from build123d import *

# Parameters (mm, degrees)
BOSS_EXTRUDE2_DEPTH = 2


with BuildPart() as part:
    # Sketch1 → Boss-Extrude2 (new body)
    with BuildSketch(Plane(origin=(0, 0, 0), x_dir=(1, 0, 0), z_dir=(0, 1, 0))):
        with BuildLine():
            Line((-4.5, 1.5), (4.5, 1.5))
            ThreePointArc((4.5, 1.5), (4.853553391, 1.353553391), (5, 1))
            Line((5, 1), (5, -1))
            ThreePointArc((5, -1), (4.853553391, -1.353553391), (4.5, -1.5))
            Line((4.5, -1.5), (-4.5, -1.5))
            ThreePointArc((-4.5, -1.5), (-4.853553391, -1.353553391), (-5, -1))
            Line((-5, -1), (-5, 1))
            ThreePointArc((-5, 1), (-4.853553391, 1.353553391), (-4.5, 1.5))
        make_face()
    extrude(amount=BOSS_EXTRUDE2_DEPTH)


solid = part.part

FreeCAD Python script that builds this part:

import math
import FreeCAD as App
import Part
import Sketcher

doc = App.newDocument("Part")
body = doc.addObject("PartDesign::Body", "Body")

sketch1 = doc.addObject("Sketcher::SketchObject", "Sketch")
body.addObject(sketch1)
sketch1.AttachmentSupport = (doc.XZ_Plane, [""])
sketch1.MapMode = "FlatFace"
sketch1.addGeometry(Part.LineSegment(App.Vector(4.5, -1.5, 0), App.Vector(-4.5, -1.5, 0)), False)
sketch1.addGeometry(Part.ArcOfCircle(Part.Circle(App.Vector(-4.5, -1, 0), App.Vector(0, 0, 1), 0.5), math.radians(180), math.radians(270)), False)
sketch1.addGeometry(Part.LineSegment(App.Vector(-5, -1, 0), App.Vector(-5, 1, 0)), False)
sketch1.addGeometry(Part.ArcOfCircle(Part.Circle(App.Vector(-4.5, 1, 0), App.Vector(0, 0, 1), 0.5), math.radians(90), math.radians(180)), False)
sketch1.addGeometry(Part.LineSegment(App.Vector(-4.5, 1.5, 0), App.Vector(4.5, 1.5, 0)), False)
sketch1.addGeometry(Part.ArcOfCircle(Part.Circle(App.Vector(4.5, 1, 0), App.Vector(0, 0, 1), 0.5), math.radians(0), math.radians(90)), False)
sketch1.addGeometry(Part.LineSegment(App.Vector(5, 1, 0), App.Vector(5, -1, 0)), False)
sketch1.addGeometry(Part.ArcOfCircle(Part.Circle(App.Vector(4.5, -1, 0), App.Vector(0, 0, 1), 0.5), math.radians(-90), math.radians(0)), False)
sketch1.addConstraint(Sketcher.Constraint("Tangent", 0, 2, 1, 2))
sketch1.addConstraint(Sketcher.Constraint("Tangent", 1, 1, 2, 1))
sketch1.addConstraint(Sketcher.Constraint("Tangent", 2, 2, 3, 2))
sketch1.addConstraint(Sketcher.Constraint("Tangent", 3, 1, 4, 1))
sketch1.addConstraint(Sketcher.Constraint("Tangent", 4, 2, 5, 2))
sketch1.addConstraint(Sketcher.Constraint("Tangent", 5, 1, 6, 1))
sketch1.addConstraint(Sketcher.Constraint("Tangent", 6, 2, 7, 2))
sketch1.addConstraint(Sketcher.Constraint("Tangent", 7, 1, 0, 1))
sketch1.addConstraint(Sketcher.Constraint("Horizontal", 0))
sketch1.addConstraint(Sketcher.Constraint("Vertical", 2))
sketch1.addConstraint(Sketcher.Constraint("Horizontal", 4))
sketch1.addConstraint(Sketcher.Constraint("Vertical", 6))
sketch1.addConstraint(Sketcher.Constraint("Equal", 1, 3))
sketch1.addConstraint(Sketcher.Constraint("Equal", 3, 5))
sketch1.addConstraint(Sketcher.Constraint("Equal", 5, 7))
sketch1.addConstraint(Sketcher.Constraint("Symmetric", 1, 3, 5, 3, -1, 1))
sketch1.addConstraint(Sketcher.Constraint("Radius", 1, 0.5))
sketch1.addConstraint(Sketcher.Constraint("DistanceX", 0, 2, 0, 1, 9.0))
sketch1.addConstraint(Sketcher.Constraint("DistanceY", 2, 1, 2, 2, 2.0))
pad1 = doc.addObject("PartDesign::Pad", "Pad")
body.addObject(pad1)
pad1.Profile = sketch1
pad1.Length = 2
pad1.Reversed = True

doc.recompute()
